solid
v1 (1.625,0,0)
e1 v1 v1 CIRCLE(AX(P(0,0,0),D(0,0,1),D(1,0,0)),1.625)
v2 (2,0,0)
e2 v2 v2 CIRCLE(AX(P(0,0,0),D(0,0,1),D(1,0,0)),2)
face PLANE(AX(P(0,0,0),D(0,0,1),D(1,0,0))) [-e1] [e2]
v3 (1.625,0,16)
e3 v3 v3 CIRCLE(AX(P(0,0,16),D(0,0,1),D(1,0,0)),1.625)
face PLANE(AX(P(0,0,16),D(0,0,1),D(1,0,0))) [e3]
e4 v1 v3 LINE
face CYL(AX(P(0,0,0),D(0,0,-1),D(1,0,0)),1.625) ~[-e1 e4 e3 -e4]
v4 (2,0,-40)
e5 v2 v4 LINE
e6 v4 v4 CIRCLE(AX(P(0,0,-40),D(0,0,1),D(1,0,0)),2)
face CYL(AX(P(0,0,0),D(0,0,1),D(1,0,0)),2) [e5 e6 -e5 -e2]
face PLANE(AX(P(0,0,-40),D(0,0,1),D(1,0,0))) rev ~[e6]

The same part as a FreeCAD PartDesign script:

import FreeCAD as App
import Part
import Sketcher
Q = App.Units.Quantity

doc = App.newDocument("Part")
body = doc.addObject("PartDesign::Body", "Body")

# Sketch on XY plane
sketch1 = body.newObject("Sketcher::SketchObject", "Sketch")
sketch1.AttachmentSupport = (doc.getObject("XY_Plane"), [""])
sketch1.MapMode = "FlatFace"
sketch1.addGeometry(Part.Circle(App.Vector(0, 0, 0), App.Vector(0, 0, 1), 1.6), False)
sketch1.addConstraint(Sketcher.Constraint("Coincident", 0, 3, -1, 1))
sketch1.addConstraint(Sketcher.Constraint("Diameter", 0, Q("3.25 mm")))
pad1 = body.newObject("PartDesign::Pad", "Pad")
pad1.Profile = sketch1
pad1.Length = 16

# Sketch on XY plane
sketch2 = body.newObject("Sketcher::SketchObject", "Sketch001")
sketch2.AttachmentSupport = (doc.getObject("XY_Plane"), [""])
sketch2.MapMode = "FlatFace"
sketch2.addGeometry(Part.Circle(App.Vector(0, 0, 0), App.Vector(0, 0, 1), 2), False)
sketch2.addConstraint(Sketcher.Constraint("Coincident", 0, 3, -1, 1))
sketch2.addConstraint(Sketcher.Constraint("Diameter", 0, Q("4 mm")))
pad2 = body.newObject("PartDesign::Pad", "Pad001")
pad2.Profile = sketch2
pad2.Length = 40
pad2.Reversed = True

doc.recompute()
